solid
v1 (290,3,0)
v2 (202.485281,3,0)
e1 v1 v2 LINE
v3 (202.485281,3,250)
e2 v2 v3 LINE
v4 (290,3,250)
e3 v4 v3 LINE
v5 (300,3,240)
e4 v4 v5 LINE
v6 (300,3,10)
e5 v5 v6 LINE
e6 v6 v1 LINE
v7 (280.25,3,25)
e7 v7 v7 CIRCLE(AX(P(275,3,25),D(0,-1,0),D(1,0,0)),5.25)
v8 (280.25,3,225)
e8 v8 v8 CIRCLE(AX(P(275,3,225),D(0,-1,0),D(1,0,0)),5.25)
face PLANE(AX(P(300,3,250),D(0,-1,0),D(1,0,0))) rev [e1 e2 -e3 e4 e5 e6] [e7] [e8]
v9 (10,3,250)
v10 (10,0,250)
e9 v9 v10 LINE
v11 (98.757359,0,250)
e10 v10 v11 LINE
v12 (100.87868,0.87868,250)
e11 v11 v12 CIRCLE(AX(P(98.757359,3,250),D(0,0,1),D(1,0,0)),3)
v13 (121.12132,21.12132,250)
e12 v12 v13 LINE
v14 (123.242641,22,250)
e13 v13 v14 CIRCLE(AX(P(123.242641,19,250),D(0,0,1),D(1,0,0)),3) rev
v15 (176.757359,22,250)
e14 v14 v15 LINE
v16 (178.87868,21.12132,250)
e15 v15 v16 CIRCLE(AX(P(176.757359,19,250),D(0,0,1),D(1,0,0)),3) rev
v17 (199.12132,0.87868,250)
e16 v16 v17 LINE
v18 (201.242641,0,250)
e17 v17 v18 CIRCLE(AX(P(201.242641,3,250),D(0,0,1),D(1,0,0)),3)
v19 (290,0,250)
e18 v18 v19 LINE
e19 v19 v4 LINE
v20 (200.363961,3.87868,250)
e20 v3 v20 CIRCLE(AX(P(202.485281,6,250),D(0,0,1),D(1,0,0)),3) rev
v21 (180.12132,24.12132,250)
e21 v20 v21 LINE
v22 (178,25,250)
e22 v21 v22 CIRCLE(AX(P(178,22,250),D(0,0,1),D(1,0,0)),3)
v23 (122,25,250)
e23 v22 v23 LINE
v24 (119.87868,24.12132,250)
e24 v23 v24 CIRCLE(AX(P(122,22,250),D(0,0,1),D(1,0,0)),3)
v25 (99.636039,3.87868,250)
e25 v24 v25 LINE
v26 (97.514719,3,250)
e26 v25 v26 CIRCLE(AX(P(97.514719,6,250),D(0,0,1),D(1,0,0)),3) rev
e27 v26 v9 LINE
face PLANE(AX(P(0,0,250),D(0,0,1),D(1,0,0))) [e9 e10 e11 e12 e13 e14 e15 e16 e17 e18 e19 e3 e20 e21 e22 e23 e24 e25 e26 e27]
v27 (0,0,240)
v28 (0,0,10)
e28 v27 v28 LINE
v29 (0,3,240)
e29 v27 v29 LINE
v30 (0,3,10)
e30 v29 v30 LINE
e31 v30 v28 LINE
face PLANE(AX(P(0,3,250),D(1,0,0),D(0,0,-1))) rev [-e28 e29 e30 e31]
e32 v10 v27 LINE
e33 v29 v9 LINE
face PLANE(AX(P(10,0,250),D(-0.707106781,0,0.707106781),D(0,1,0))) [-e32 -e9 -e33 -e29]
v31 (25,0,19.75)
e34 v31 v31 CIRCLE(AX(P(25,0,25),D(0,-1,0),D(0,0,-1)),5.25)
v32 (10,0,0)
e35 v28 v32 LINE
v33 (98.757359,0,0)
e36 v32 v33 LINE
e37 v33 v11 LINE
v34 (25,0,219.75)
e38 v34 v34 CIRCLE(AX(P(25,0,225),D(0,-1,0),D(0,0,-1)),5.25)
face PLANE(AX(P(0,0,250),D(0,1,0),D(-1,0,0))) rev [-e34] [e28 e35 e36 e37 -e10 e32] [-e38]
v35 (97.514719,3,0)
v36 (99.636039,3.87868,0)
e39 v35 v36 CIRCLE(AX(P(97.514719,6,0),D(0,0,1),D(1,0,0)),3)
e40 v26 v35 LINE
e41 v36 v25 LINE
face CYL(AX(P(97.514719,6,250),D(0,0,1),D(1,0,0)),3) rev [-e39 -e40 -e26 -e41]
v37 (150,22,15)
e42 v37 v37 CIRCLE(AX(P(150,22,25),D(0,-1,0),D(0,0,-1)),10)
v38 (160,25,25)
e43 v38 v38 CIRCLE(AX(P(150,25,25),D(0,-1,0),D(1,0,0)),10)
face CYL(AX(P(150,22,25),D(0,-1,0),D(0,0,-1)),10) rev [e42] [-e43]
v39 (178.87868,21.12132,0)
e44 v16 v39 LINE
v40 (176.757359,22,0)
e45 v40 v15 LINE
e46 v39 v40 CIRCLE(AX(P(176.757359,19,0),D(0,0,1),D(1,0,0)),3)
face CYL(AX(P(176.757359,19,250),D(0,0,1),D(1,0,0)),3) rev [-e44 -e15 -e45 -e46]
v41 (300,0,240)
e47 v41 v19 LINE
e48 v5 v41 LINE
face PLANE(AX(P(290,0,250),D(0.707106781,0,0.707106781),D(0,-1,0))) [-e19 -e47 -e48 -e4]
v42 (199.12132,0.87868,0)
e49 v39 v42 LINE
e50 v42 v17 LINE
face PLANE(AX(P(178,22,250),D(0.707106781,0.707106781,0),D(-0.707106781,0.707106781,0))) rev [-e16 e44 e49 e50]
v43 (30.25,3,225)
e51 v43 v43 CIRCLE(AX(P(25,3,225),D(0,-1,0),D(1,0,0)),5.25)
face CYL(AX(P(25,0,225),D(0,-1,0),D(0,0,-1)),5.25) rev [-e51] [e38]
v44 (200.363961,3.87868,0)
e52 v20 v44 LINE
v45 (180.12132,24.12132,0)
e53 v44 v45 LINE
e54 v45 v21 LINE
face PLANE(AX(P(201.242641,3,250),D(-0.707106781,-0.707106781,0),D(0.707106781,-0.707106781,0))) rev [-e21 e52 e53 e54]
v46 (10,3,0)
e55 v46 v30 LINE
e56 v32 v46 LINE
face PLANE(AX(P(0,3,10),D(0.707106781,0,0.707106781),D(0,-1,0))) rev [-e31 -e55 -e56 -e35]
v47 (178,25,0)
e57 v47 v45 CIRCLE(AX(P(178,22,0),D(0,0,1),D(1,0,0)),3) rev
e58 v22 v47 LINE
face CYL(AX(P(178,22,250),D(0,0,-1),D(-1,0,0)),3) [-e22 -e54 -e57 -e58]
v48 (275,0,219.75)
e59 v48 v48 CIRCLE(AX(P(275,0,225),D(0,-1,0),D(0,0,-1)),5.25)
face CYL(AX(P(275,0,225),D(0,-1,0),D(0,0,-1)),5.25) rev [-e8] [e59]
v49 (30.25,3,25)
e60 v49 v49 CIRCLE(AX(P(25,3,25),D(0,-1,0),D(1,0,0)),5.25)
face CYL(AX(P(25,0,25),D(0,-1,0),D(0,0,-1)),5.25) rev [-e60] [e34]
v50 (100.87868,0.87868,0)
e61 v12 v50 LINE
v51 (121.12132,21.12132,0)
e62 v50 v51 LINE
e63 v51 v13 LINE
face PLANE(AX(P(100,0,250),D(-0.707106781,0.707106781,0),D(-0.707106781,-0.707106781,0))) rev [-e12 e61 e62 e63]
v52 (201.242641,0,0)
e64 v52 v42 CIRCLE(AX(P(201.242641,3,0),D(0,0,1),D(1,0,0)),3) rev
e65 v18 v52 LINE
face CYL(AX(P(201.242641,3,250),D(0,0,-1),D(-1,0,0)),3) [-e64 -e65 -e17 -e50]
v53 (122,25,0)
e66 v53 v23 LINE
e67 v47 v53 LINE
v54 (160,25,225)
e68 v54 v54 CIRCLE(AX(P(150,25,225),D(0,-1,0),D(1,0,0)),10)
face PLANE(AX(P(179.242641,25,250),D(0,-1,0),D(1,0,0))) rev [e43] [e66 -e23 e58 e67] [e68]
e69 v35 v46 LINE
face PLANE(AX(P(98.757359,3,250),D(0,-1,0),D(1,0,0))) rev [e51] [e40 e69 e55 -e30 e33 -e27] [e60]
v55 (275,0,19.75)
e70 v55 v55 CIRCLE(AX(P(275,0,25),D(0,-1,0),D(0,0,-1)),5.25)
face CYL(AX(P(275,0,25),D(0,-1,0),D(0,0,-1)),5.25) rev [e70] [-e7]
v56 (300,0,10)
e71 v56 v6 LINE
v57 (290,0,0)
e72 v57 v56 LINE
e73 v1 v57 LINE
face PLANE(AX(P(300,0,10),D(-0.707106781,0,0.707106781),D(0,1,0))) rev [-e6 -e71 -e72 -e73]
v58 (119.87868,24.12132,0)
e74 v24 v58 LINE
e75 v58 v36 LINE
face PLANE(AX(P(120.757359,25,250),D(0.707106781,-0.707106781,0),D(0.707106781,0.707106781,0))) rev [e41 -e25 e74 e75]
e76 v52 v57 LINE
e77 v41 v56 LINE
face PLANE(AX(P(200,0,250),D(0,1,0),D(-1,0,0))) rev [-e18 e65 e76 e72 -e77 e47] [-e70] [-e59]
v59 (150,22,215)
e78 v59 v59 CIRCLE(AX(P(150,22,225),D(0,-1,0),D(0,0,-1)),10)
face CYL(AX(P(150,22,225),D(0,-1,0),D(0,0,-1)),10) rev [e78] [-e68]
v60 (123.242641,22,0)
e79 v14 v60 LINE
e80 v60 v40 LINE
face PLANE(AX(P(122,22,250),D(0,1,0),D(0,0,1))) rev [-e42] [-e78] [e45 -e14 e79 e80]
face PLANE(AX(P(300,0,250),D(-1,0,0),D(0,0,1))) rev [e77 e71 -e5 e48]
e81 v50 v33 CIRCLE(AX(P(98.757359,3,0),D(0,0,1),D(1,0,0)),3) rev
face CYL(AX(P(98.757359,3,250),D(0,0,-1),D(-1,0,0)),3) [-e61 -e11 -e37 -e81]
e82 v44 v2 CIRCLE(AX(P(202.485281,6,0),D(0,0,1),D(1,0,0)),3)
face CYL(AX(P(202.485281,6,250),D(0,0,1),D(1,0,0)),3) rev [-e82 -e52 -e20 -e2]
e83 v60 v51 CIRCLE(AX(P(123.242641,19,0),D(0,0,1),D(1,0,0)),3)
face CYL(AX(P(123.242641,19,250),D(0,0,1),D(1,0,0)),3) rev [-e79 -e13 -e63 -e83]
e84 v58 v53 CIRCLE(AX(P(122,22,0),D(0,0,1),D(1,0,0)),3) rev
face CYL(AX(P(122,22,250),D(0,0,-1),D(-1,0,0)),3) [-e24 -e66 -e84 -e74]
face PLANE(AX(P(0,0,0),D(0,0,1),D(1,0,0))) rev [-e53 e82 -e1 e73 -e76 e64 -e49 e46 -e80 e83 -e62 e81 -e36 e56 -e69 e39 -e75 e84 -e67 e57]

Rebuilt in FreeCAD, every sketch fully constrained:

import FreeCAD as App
import Part
import Sketcher
from FreeCAD import Vector
Q = App.Units.Quantity


def edges_at(feature, points):
    """Names of the edges that pass closest to the given points."""
    edges = feature.Shape.Edges
    near = lambda p: min(range(len(edges)), key=lambda i: edges[i].distToShape(Part.Vertex(*p))[0])
    return sorted({f"Edge{near(p) + 1}" for p in points})

doc = App.newDocument("Part")
body = doc.addObject("PartDesign::Body", "Body")

sketch1 = body.newObject("Sketcher::SketchObject", "Sketch")
sketch1.AttachmentSupport = (doc.getObject("XY_Plane"), [""])
sketch1.MapMode = "FlatFace"
sketch1.addGeometry([
    Part.LineSegment(Vector(0, 0, 0), Vector(100, 0, 0)),
    Part.LineSegment(Vector(100, 0, 0), Vector(122, 22, 0)),
    Part.LineSegment(Vector(122, 22, 0), Vector(178, 22, 0)),
    Part.LineSegment(Vector(178, 22, 0), Vector(200, 0, 0)),
    Part.LineSegment(Vector(200, 0, 0), Vector(300, 0, 0)),
    Part.LineSegment(Vector(300, 0, 0), Vector(300, 3, 0)),
    Part.LineSegment(Vector(300, 3, 0), Vector(201.2, 3, 0)),
    Part.LineSegment(Vector(201.2, 3, 0), Vector(179.2, 25, 0)),
    Part.LineSegment(Vector(179.2, 25, 0), Vector(120.8, 25, 0)),
    Part.LineSegment(Vector(120.8, 25, 0), Vector(98.8, 3, 0)),
    Part.LineSegment(Vector(98.8, 3, 0), Vector(0, 3, 0)),
    Part.LineSegment(Vector(0, 3, 0), Vector(0, 0, 0)),
], False)
sketch1.addConstraint([
    Sketcher.Constraint("Coincident", 0, 2, 1, 1),
    Sketcher.Constraint("Coincident", 1, 2, 2, 1),
    Sketcher.Constraint("Coincident", 2, 2, 3, 1),
    Sketcher.Constraint("Coincident", 3, 2, 4, 1),
    Sketcher.Constraint("Coincident", 4, 2, 5, 1),
    Sketcher.Constraint("Coincident", 5, 2, 6, 1),
    Sketcher.Constraint("Coincident", 6, 2, 7, 1),
    Sketcher.Constraint("Coincident", 7, 2, 8, 1),
    Sketcher.Constraint("Coincident", 8, 2, 9, 1),
    Sketcher.Constraint("Coincident", 9, 2, 10, 1),
    Sketcher.Constraint("Coincident", 10, 2, 11, 1),
    Sketcher.Constraint("Coincident", 11, 2, 0, 1),
    Sketcher.Constraint("Horizontal", 0),
    Sketcher.Constraint("Horizontal", 2),
    Sketcher.Constraint("Horizontal", 4),
    Sketcher.Constraint("Vertical", 5),
    Sketcher.Constraint("Horizontal", 6),
    Sketcher.Constraint("Horizontal", 8),
    Sketcher.Constraint("Horizontal", 10),
    Sketcher.Constraint("Vertical", 11),
    Sketcher.Constraint("Coincident", 11, 2, -1, 1),
    Sketcher.Constraint("PointOnObject", 3, 2, -1),
    Sketcher.Constraint("Perpendicular", 1, 3),
    Sketcher.Constraint("Parallel", 3, 7),
    Sketcher.Constraint("Perpendicular", 7, 9),
    Sketcher.Constraint("Horizontal", 6, 2, 9, 2),
    Sketcher.Constraint("Equal", 0, 4),
    Sketcher.Constraint("Equal", 6, 10),
    Sketcher.Constraint("Equal", 1, 3),
    Sketcher.Constraint("Equal", 3, 7),
    Sketcher.Constraint("DistanceX", 0, 1, 0, 2, Q("100 mm")),
    Sketcher.Constraint("DistanceX", 2, 1, 2, 2, Q("56 mm")),
    Sketcher.Constraint("DistanceY", 5, 1, 5, 2, Q("3 mm")),
    Sketcher.Constraint("DistanceX", -1, 1, 1, 2, Q("122 mm")),
    Sketcher.Constraint("DistanceX", 6, 2, 6, 1, Q("98.757359 mm")),
])
pad1 = body.newObject("PartDesign::Pad", "Pad")
pad1.Profile = sketch1
pad1.Length = 250

sketch2 = body.newObject("Sketcher::SketchObject", "Sketch001")
sketch2.AttachmentSupport = (doc.getObject("XZ_Plane"), [""])
sketch2.MapMode = "FlatFace"
sketch2.AttachmentOffset = App.Placement(Vector(0, 0, -22), App.Rotation())
sketch2.addGeometry([
    Part.Circle(Vector(150, 225, 0), Vector(0, 0, 1), 10),
    Part.Circle(Vector(150, 25, 0), Vector(0, 0, 1), 10),
], False)
sketch2.addConstraint([
    Sketcher.Constraint("Equal", 0, 1),
    Sketcher.Constraint("Vertical", 0, 3, 1, 3),
    Sketcher.Constraint("Diameter", 0, Q("20 mm")),
    Sketcher.Constraint("DistanceX", -1, 1, 0, 3, Q("150 mm")),
    Sketcher.Constraint("DistanceY", -1, 1, 0, 3, Q("225 mm")),
    Sketcher.Constraint("DistanceY", -1, 1, 1, 3, Q("25 mm")),
])
doc.recompute()
hole = body.newObject("PartDesign::Hole", "Hole")
hole.Profile = sketch2
hole.ThreadType = "None"
hole.Diameter = 20
hole.DepthType = "Dimension"
hole.Depth = 42.5
hole.DrillPoint = "Angled"
hole.DrillPointAngle = 118
doc.recompute()

fillet = body.newObject("PartDesign::Fillet", "Fillet")
fillet.Base = (hole, edges_at(hole, [
    (98.757, 3, 125),
    (120.757, 25, 125),
    (179.243, 25, 125),
    (201.243, 3, 125),
    (200, 0, 125),
    (178, 22, 125),
    (122, 22, 125),
    (100, 0, 125),
]))
fillet.Radius = 3

sketch3 = body.newObject("Sketcher::SketchObject", "Sketch002")
sketch3.AttachmentSupport = (doc.getObject("XZ_Plane"), [""])
sketch3.MapMode = "FlatFace"
sketch3.addGeometry([
    Part.Circle(Vector(25, 225, 0), Vector(0, 0, 1), 5),
    Part.Circle(Vector(25, 25, 0), Vector(0, 0, 1), 5),
    Part.Circle(Vector(275, 225, 0), Vector(0, 0, 1), 5),
    Part.Circle(Vector(275, 25, 0), Vector(0, 0, 1), 5),
], False)
sketch3.addConstraint([
    Sketcher.Constraint("Equal", 0, 1),
    Sketcher.Constraint("Equal", 1, 2),
    Sketcher.Constraint("Equal", 2, 3),
    Sketcher.Constraint("Horizontal", 0, 3, 2, 3),
    Sketcher.Constraint("Horizontal", 1, 3, 3, 3),
    Sketcher.Constraint("Vertical", 0, 3, 1, 3),
    Sketcher.Constraint("Vertical", 2, 3, 3, 3),
    Sketcher.Constraint("Diameter", 0, Q("10.5 mm")),
    Sketcher.Constraint("DistanceX", -1, 1, 0, 3, Q("25 mm")),
    Sketcher.Constraint("DistanceY", -1, 1, 0, 3, Q("225 mm")),
    Sketcher.Constraint("DistanceY", -1, 1, 1, 3, Q("25 mm")),
    Sketcher.Constraint("DistanceX", -1, 1, 2, 3, Q("275 mm")),
])
doc.recompute()
hole2 = body.newObject("PartDesign::Hole", "Hole001")
hole2.Profile = sketch3
hole2.ThreadType = "None"
hole2.Diameter = 10.5
hole2.DepthType = "ThroughAll"
doc.recompute()

chamfer = body.newObject("PartDesign::Chamfer", "Chamfer")
chamfer.Base = (hole2, edges_at(hole2, [
    (300, 1.5, 0),
    (0, 1.5, 0),
    (300, 1.5, 250),
    (0, 1.5, 250),
]))
chamfer.Size = 10

doc.recompute()
